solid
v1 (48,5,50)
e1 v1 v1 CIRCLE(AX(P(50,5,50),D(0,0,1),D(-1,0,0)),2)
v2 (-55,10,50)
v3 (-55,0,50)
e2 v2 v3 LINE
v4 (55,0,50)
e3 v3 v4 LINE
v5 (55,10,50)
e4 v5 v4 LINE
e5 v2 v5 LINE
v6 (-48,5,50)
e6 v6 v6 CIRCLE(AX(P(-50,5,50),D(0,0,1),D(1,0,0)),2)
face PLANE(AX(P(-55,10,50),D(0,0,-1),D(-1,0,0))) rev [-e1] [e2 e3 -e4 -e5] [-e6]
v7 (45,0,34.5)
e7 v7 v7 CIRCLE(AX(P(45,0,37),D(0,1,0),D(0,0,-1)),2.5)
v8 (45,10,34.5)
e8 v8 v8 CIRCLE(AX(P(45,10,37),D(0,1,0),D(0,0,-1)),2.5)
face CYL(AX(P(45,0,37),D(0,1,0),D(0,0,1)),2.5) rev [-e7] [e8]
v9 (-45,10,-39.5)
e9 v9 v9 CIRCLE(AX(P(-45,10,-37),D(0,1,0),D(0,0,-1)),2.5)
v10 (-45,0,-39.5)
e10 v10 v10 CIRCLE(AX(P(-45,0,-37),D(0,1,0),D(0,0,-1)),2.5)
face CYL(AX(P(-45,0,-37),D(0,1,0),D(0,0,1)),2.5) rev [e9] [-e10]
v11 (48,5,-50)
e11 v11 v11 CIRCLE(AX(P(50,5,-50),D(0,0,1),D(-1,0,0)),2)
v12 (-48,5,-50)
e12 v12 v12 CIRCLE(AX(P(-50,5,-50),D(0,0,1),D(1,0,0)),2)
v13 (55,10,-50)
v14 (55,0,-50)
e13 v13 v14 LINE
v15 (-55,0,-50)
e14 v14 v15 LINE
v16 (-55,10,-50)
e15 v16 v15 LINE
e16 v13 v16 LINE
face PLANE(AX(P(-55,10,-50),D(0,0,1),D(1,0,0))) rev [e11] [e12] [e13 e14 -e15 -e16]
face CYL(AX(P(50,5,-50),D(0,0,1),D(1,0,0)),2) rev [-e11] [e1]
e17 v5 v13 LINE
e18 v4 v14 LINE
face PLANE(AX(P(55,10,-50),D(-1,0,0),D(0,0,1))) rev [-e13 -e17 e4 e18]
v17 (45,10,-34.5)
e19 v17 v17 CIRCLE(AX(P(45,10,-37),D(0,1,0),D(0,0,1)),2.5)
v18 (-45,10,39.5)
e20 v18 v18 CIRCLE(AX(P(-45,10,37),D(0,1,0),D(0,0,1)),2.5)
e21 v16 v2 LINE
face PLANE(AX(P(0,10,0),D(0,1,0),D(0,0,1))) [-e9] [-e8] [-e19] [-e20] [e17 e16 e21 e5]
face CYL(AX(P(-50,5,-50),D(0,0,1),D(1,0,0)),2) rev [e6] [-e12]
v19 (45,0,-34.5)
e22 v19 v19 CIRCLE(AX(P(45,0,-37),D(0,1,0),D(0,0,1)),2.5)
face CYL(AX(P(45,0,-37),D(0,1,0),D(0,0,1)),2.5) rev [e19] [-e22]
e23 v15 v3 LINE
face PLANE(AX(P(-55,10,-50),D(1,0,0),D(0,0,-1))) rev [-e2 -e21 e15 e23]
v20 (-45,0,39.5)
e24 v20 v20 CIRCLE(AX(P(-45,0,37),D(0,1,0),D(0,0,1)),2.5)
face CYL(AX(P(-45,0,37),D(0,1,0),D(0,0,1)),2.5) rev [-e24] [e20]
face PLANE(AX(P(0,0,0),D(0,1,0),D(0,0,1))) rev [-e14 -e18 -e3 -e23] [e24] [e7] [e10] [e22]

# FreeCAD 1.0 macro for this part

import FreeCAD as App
import Part
import Sketcher
from FreeCAD import Vector


def add_polygon(sketch, points):
    """Adds a closed chain of lines whose ends are joined by coincident constraints."""
    first, n = sketch.GeometryCount, len(points)
    for a, b in zip(points, points[1:] + points[:1]):
        sketch.addGeometry(Part.LineSegment(App.Vector(*a, 0), App.Vector(*b, 0)), False)
    for i in range(n):
        sketch.addConstraint(Sketcher.Constraint("Coincident", first + i, 2, first + (i + 1) % n, 1))

doc = App.newDocument("Part")
body = doc.addObject("PartDesign::Body", "Body")

# Sketch on XZ plane
sketch1 = body.newObject("Sketcher::SketchObject", "Sketch")
sketch1.AttachmentSupport = (doc.getObject("XZ_Plane"), [""])
sketch1.MapMode = "FlatFace"
add_polygon(sketch1, [(-55, -50), (-55, 50), (55, 50), (55, -50)])  # lines 0-3
sketch1.addConstraint(Sketcher.Constraint("Vertical", 0))
sketch1.addConstraint(Sketcher.Constraint("Horizontal", 1))
sketch1.addConstraint(Sketcher.Constraint("Vertical", 2))
sketch1.addConstraint(Sketcher.Constraint("Horizontal", 3))
sketch1.addConstraint(Sketcher.Constraint("Symmetric", 0, 2, 2, 2, -1, 1))
sketch1.addConstraint(Sketcher.Constraint("DistanceX", 1, 1, 1, 2, 110.0))
sketch1.addConstraint(Sketcher.Constraint("DistanceY", 0, 1, 0, 2, 100.0))
pad1 = body.newObject("PartDesign::Pad", "Pad")
pad1.Profile = sketch1
pad1.Length = 10
pad1.Reversed = True

# Sketch on XY plane
sketch2 = body.newObject("Sketcher::SketchObject", "Sketch001")
sketch2.AttachmentSupport = (doc.getObject("XY_Plane"), [""])
sketch2.MapMode = "FlatFace"
sketch2.AttachmentOffset = App.Placement(Vector(0, 0, 50), App.Rotation())
sketch2.addGeometry(Part.Circle(Vector(-50, 5, 0), Vector(0, 0, 1), 2), False)
sketch2.addGeometry(Part.Circle(Vector(50, 5, 0), Vector(0, 0, 1), 2), False)
sketch2.addConstraint(Sketcher.Constraint("Equal", 0, 1))
sketch2.addConstraint(Sketcher.Constraint("Symmetric", 0, 3, 1, 3, -2))
sketch2.addConstraint(Sketcher.Constraint("Diameter", 0, 4.0))
sketch2.addConstraint(Sketcher.Constraint("DistanceX", 0, 3, -1, 1, 50.0))
sketch2.addConstraint(Sketcher.Constraint("DistanceY", -1, 1, 0, 3, 5.0))
pocket1 = body.newObject("PartDesign::Pocket", "Pocket")
pocket1.Profile = sketch2
pocket1.Type = "ThroughAll"

# Sketch on XZ plane
sketch3 = body.newObject("Sketcher::SketchObject", "Sketch002")
sketch3.AttachmentSupport = (doc.getObject("XZ_Plane"), [""])
sketch3.MapMode = "FlatFace"
sketch3.AttachmentOffset = App.Placement(Vector(0, 0, -10), App.Rotation())
sketch3.addGeometry(Part.Circle(Vector(-45, 37, 0), Vector(0, 0, 1), 2.5), False)
sketch3.addGeometry(Part.Circle(Vector(45, 37, 0), Vector(0, 0, 1), 2.5), False)
sketch3.addGeometry(Part.Circle(Vector(45, -37, 0), Vector(0, 0, 1), 2.5), False)
sketch3.addGeometry(Part.Circle(Vector(-45, -37, 0), Vector(0, 0, 1), 2.5), False)
sketch3.addConstraint(Sketcher.Constraint("Equal", 0, 1))
sketch3.addConstraint(Sketcher.Constraint("Equal", 1, 2))
sketch3.addConstraint(Sketcher.Constraint("Equal", 2, 3))
sketch3.addConstraint(Sketcher.Constraint("Symmetric", 0, 3, 2, 3, -1, 1))
sketch3.addConstraint(Sketcher.Constraint("Symmetric", 1, 3, 3, 3, -1, 1))
sketch3.addConstraint(Sketcher.Constraint("Symmetric", 0, 3, 1, 3, -2))
sketch3.addConstraint(Sketcher.Constraint("Diameter", 0, 5.0))
sketch3.addConstraint(Sketcher.Constraint("DistanceX", 0, 3, -1, 1, 45.0))
sketch3.addConstraint(Sketcher.Constraint("DistanceY", -1, 1, 0, 3, 37.0))
pocket2 = body.newObject("PartDesign::Pocket", "Pocket001")
pocket2.Profile = sketch3
pocket2.Length = 10
pocket2.Reversed = True

doc.recompute()
